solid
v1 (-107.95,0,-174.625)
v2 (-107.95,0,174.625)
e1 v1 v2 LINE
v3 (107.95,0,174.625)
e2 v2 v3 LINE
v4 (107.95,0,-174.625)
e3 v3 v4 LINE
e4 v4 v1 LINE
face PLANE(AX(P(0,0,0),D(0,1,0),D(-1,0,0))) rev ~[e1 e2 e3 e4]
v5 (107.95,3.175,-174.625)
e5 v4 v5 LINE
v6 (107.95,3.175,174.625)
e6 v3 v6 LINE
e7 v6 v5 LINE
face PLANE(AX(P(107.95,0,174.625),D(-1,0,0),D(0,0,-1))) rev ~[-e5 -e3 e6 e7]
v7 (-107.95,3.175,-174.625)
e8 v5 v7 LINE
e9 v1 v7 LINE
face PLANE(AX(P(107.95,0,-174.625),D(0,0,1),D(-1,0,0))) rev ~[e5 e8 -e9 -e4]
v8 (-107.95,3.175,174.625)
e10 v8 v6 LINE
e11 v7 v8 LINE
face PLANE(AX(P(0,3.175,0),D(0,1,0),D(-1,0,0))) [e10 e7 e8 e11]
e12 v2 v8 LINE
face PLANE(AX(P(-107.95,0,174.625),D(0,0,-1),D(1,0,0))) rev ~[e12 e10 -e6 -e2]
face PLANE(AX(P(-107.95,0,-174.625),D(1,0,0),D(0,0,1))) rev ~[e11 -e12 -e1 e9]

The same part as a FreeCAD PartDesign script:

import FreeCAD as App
import Part
import Sketcher
from FreeCAD import Vector
Q = App.Units.Quantity


def add_polygon(sketch, points):
    """Adds a closed chain of lines whose ends are joined by coincident constraints."""
    first, n = sketch.GeometryCount, len(points)
    for a, b in zip(points, points[1:] + points[:1]):
        sketch.addGeometry(Part.LineSegment(App.Vector(*a, 0), App.Vector(*b, 0)), False)
    for i in range(n):
        sketch.addConstraint(Sketcher.Constraint("Coincident", first + i, 2, first + (i + 1) % n, 1))

doc = App.newDocument("Part")
body = doc.addObject("PartDesign::Body", "Body")

sketch1 = body.newObject("Sketcher::SketchObject", "Sketch")
sketch1.AttachmentSupport = (doc.getObject("XZ_Plane"), [""])
sketch1.MapMode = "FlatFace"
add_polygon(sketch1, [(-108, -175), (-108, 175), (108, 175), (108, -175)])
sketch1.addConstraint(Sketcher.Constraint("Vertical", 0))
sketch1.addConstraint(Sketcher.Constraint("Horizontal", 1))
sketch1.addConstraint(Sketcher.Constraint("Vertical", 2))
sketch1.addConstraint(Sketcher.Constraint("Horizontal", 3))
sketch1.addConstraint(Sketcher.Constraint("Symmetric", 0, 2, 2, 2, -1, 1))
sketch1.addConstraint(Sketcher.Constraint("DistanceX", 1, 1, 1, 2, Q("8.5 in")))
sketch1.addConstraint(Sketcher.Constraint("DistanceY", 0, 1, 0, 2, Q("13.75 in")))
pad1 = body.newObject("PartDesign::Pad", "Pad")
pad1.Profile = sketch1
pad1.Length = Q("0.125 in")
pad1.Reversed = True

doc.recompute()
